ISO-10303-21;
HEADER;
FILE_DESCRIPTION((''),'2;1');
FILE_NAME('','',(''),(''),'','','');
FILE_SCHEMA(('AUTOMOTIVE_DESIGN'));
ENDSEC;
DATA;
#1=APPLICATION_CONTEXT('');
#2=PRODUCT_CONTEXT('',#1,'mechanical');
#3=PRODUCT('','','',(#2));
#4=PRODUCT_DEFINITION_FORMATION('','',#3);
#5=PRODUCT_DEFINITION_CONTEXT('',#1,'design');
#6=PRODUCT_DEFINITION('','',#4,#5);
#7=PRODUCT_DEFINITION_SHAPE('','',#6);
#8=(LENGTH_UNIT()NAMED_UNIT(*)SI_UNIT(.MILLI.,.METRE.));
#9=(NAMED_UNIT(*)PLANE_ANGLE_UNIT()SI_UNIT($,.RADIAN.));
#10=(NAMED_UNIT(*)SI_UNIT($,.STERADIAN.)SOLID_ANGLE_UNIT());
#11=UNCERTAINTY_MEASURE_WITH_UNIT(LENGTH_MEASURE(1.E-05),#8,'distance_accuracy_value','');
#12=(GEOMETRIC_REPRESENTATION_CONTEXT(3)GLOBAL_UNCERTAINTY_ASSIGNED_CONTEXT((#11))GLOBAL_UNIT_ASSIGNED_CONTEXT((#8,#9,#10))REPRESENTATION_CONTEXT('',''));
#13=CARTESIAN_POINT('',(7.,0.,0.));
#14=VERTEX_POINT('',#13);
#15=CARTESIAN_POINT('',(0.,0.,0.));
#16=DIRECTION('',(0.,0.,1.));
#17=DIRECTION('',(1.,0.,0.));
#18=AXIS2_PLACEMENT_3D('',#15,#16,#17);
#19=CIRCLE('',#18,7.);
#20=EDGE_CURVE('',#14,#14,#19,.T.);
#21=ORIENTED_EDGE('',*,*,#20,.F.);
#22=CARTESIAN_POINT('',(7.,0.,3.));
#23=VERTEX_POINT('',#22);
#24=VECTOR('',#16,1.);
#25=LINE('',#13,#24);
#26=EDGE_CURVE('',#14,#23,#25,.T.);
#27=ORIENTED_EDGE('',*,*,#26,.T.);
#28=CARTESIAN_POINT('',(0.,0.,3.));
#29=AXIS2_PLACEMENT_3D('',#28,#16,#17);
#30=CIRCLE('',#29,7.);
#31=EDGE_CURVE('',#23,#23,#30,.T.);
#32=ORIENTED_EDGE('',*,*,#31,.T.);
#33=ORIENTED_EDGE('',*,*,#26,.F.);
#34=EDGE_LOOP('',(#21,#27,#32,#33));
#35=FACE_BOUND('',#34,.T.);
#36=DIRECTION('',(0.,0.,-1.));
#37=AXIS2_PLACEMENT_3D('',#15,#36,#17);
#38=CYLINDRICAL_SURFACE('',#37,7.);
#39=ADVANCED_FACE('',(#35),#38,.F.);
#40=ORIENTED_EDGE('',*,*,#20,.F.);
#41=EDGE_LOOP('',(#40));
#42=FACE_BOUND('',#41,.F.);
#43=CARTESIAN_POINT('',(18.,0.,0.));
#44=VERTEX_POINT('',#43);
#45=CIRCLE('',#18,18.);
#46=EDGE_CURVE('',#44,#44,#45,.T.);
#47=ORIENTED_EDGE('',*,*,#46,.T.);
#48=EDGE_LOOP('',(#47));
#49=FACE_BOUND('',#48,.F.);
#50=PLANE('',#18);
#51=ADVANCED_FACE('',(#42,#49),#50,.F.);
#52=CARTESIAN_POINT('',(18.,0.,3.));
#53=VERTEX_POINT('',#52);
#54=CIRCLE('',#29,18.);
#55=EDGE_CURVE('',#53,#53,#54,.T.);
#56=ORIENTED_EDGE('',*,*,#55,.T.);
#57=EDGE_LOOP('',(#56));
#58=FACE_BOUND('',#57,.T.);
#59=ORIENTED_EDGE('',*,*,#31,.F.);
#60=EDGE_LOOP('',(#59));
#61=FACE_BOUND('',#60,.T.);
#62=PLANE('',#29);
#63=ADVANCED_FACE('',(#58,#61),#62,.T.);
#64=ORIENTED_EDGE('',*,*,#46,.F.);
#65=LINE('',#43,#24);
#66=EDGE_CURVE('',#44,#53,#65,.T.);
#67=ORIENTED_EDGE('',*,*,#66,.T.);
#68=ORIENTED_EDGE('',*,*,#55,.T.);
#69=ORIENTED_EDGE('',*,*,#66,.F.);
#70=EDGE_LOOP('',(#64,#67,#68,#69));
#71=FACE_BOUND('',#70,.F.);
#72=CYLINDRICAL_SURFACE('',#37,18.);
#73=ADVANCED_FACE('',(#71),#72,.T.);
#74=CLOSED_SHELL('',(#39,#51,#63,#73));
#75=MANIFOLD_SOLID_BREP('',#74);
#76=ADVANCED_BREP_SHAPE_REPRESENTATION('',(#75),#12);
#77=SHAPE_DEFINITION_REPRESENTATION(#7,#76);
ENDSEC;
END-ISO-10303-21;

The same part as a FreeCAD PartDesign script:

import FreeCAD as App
import Part
import Sketcher

doc = App.newDocument("Part")
body = doc.addObject("PartDesign::Body", "Body")

# Sketch on XY plane
sketch1 = doc.addObject("Sketcher::SketchObject", "Sketch")
body.addObject(sketch1)
sketch1.AttachmentSupport = (doc.XY_Plane, [""])
sketch1.MapMode = "FlatFace"
sketch1.addGeometry([
    Part.Circle(App.Vector(0, 0, 0), App.Vector(0, 0, 1), 18),
    Part.Circle(App.Vector(0, 0, 0), App.Vector(0, 0, 1), 7),
], False)
sketch1.addConstraint([
    Sketcher.Constraint("Coincident", 0, 3, -1, 1),
    Sketcher.Constraint("Coincident", 1, 3, -1, 1),
    Sketcher.Constraint("Diameter", 0, 36.0),
    Sketcher.Constraint("Diameter", 1, 14.0),
])
pad1 = doc.addObject("PartDesign::Pad", "Pad")
body.addObject(pad1)
pad1.Profile = sketch1
pad1.Length = 3

doc.recompute()
